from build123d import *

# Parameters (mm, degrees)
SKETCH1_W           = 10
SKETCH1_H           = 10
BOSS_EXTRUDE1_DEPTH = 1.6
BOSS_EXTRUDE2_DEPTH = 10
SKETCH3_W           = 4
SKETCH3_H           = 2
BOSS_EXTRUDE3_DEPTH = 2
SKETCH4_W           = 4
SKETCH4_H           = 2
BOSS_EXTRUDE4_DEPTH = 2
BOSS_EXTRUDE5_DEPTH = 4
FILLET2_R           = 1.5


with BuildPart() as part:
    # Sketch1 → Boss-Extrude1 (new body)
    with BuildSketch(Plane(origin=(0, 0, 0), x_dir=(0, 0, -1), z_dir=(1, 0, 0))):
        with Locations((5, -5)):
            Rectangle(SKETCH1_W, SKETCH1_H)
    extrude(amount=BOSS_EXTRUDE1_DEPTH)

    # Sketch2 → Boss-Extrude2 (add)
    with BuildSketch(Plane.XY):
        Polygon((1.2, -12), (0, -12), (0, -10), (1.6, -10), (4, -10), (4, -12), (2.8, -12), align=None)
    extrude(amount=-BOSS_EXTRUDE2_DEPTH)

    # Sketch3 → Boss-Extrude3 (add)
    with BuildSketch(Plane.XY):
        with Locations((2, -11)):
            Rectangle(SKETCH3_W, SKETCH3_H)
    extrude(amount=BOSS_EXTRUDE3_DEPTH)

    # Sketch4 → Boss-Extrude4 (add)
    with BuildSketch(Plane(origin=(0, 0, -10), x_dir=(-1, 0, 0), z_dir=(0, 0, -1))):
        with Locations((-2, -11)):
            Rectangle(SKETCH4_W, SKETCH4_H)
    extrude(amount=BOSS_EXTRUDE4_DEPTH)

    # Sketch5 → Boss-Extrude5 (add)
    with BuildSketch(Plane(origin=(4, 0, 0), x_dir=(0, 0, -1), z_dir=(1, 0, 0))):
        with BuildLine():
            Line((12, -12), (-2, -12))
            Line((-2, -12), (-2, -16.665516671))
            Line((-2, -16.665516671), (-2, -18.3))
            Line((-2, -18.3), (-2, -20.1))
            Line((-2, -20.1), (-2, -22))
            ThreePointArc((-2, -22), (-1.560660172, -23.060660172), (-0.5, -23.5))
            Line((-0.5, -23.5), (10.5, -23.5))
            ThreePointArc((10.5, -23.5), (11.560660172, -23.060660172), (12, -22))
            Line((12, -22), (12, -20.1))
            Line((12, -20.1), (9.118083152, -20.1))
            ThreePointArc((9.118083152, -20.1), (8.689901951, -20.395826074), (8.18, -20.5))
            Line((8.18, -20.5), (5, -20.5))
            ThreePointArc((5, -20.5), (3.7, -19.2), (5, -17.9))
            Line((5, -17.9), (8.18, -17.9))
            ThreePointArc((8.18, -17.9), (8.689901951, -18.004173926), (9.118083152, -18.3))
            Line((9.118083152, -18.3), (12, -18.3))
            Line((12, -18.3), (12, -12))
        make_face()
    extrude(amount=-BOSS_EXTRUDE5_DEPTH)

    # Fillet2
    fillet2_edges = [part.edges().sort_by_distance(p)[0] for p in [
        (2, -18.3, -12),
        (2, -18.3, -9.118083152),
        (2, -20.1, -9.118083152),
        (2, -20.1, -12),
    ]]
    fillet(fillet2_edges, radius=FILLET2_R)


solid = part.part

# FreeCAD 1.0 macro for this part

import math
import FreeCAD as App
import Part
import Sketcher

V = App.Vector


def edges_at(feature, points):
    """Names of the edges that pass closest to the given points."""
    edges = feature.Shape.Edges
    near = lambda p: min(range(len(edges)), key=lambda i: edges[i].distToShape(Part.Vertex(*p))[0])
    return sorted({f"Edge{near(p) + 1}" for p in points})

doc = App.newDocument("Part")
body = doc.addObject("PartDesign::Body", "Body")

sketch1 = body.newObject("Sketcher::SketchObject", "Sketch")
sketch1.AttachmentSupport = (doc.getObject("YZ_Plane"), [""])
sketch1.MapMode = "FlatFace"
sketch1.addGeometry([
    Part.LineSegment(V(0, 0, 0), V(-10, 0, 0)),
    Part.LineSegment(V(-10, 0, 0), V(-10, -10, 0)),
    Part.LineSegment(V(-10, -10, 0), V(0, -10, 0)),
    Part.LineSegment(V(0, -10, 0), V(0, 0, 0)),
], False)
sketch1.addConstraint([
    Sketcher.Constraint("Coincident", 0, 2, 1, 1),
    Sketcher.Constraint("Coincident", 1, 2, 2, 1),
    Sketcher.Constraint("Coincident", 2, 2, 3, 1),
    Sketcher.Constraint("Coincident", 3, 2, 0, 1),
    Sketcher.Constraint("Horizontal", 0),
    Sketcher.Constraint("Vertical", 1),
    Sketcher.Constraint("Horizontal", 2),
    Sketcher.Constraint("Vertical", 3),
    Sketcher.Constraint("Coincident", 3, 2, -1, 1),
    Sketcher.Constraint("Equal", 2, 1),
    Sketcher.Constraint("DistanceX", 0, 2, 0, 1, 10.0),
])
pad1 = body.newObject("PartDesign::Pad", "Pad")
pad1.Profile = sketch1
pad1.Length = 1.6

sketch2 = body.newObject("Sketcher::SketchObject", "Sketch001")
sketch2.AttachmentSupport = (doc.getObject("XY_Plane"), [""])
sketch2.MapMode = "FlatFace"
sketch2.addGeometry([
    Part.LineSegment(V(0, -12, 0), V(4, -12, 0)),
    Part.LineSegment(V(4, -12, 0), V(4, -10, 0)),
    Part.LineSegment(V(4, -10, 0), V(0, -10, 0)),
    Part.LineSegment(V(0, -10, 0), V(0, -12, 0)),
], False)
sketch2.addConstraint([
    Sketcher.Constraint("Coincident", 0, 2, 1, 1),
    Sketcher.Constraint("Coincident", 1, 2, 2, 1),
    Sketcher.Constraint("Coincident", 2, 2, 3, 1),
    Sketcher.Constraint("Coincident", 3, 2, 0, 1),
    Sketcher.Constraint("Horizontal", 0),
    Sketcher.Constraint("Vertical", 1),
    Sketcher.Constraint("Horizontal", 2),
    Sketcher.Constraint("Vertical", 3),
    Sketcher.Constraint("PointOnObject", 2, 2, -2),
    Sketcher.Constraint("DistanceX", 0, 1, 0, 2, 4.0),
    Sketcher.Constraint("DistanceY", 1, 1, 1, 2, 2.0),
    Sketcher.Constraint("DistanceY", 0, 2, -1, 1, 12.0),
])
pad2 = body.newObject("PartDesign::Pad", "Pad001")
pad2.Profile = sketch2
pad2.Length = 10
pad2.Reversed = True

sketch3 = body.newObject("Sketcher::SketchObject", "Sketch002")
sketch3.AttachmentSupport = (doc.getObject("XY_Plane"), [""])
sketch3.MapMode = "FlatFace"
sketch3.addGeometry([
    Part.LineSegment(V(0, -10, 0), V(0, -12, 0)),
    Part.LineSegment(V(0, -12, 0), V(4, -12, 0)),
    Part.LineSegment(V(4, -12, 0), V(4, -10, 0)),
    Part.LineSegment(V(4, -10, 0), V(0, -10, 0)),
], False)
sketch3.addConstraint([
    Sketcher.Constraint("Coincident", 0, 2, 1, 1),
    Sketcher.Constraint("Coincident", 1, 2, 2, 1),
    Sketcher.Constraint("Coincident", 2, 2, 3, 1),
    Sketcher.Constraint("Coincident", 3, 2, 0, 1),
    Sketcher.Constraint("Vertical", 0),
    Sketcher.Constraint("Horizontal", 1),
    Sketcher.Constraint("Vertical", 2),
    Sketcher.Constraint("Horizontal", 3),
    Sketcher.Constraint("PointOnObject", 0, 2, -2),
    Sketcher.Constraint("DistanceX", 1, 1, 1, 2, 4.0),
    Sketcher.Constraint("DistanceY", 0, 2, 0, 1, 2.0),
    Sketcher.Constraint("DistanceY", 0, 2, -1, 1, 12.0),
])
pad3 = body.newObject("PartDesign::Pad", "Pad002")
pad3.Profile = sketch3
pad3.Length = 2

sketch4 = body.newObject("Sketcher::SketchObject", "Sketch003")
sketch4.AttachmentSupport = (doc.getObject("XY_Plane"), [""])
sketch4.MapMode = "FlatFace"
sketch4.AttachmentOffset = App.Placement(V(0, 0, -10), App.Rotation())
sketch4.addGeometry([
    Part.LineSegment(V(4, -10, 0), V(4, -12, 0)),
    Part.LineSegment(V(4, -12, 0), V(0, -12, 0)),
    Part.LineSegment(V(0, -12, 0), V(0, -10, 0)),
    Part.LineSegment(V(0, -10, 0), V(4, -10, 0)),
], False)
sketch4.addConstraint([
    Sketcher.Constraint("Coincident", 0, 2, 1, 1),
    Sketcher.Constraint("Coincident", 1, 2, 2, 1),
    Sketcher.Constraint("Coincident", 2, 2, 3, 1),
    Sketcher.Constraint("Coincident", 3, 2, 0, 1),
    Sketcher.Constraint("Vertical", 0),
    Sketcher.Constraint("Horizontal", 1),
    Sketcher.Constraint("Vertical", 2),
    Sketcher.Constraint("Horizontal", 3),
    Sketcher.Constraint("PointOnObject", 1, 2, -2),
    Sketcher.Constraint("DistanceX", 1, 2, 1, 1, 4.0),
    Sketcher.Constraint("DistanceY", 0, 2, 0, 1, 2.0),
    Sketcher.Constraint("DistanceY", 0, 2, -1, 1, 12.0),
])
pad4 = body.newObject("PartDesign::Pad", "Pad003")
pad4.Profile = sketch4
pad4.Length = 2
pad4.Reversed = True

sketch5 = body.newObject("Sketcher::SketchObject", "Sketch004")
sketch5.AttachmentSupport = (doc.getObject("YZ_Plane"), [""])
sketch5.MapMode = "FlatFace"
sketch5.AttachmentOffset = App.Placement(V(0, 0, 4), App.Rotation())
sketch5.addGeometry([
    Part.LineSegment(V(-12, -12, 0), V(-12, 2, 0)),
    Part.LineSegment(V(-12, 2, 0), V(-22, 2, 0)),
    Part.ArcOfCircle(Part.Circle(V(-22, 0.5, 0), V(0, 0, 1), 1.5), math.radians(90), math.radians(180)),
    Part.LineSegment(V(-23.5, 0.5, 0), V(-23.5, -10.5, 0)),
    Part.ArcOfCircle(Part.Circle(V(-22, -10.5, 0), V(0, 0, 1), 1.5), math.radians(180), math.radians(270)),
    Part.LineSegment(V(-22, -12, 0), V(-20.1, -12, 0)),
    Part.LineSegment(V(-20.1, -12, 0), V(-20.1, -9.1, 0)),
    Part.ArcOfCircle(Part.Circle(V(-19.2, -8.2, 0), V(0, 0, 1), 1.3), math.radians(-180), math.radians(-134)),
    Part.LineSegment(V(-20.5, -8.2, 0), V(-20.5, -5, 0)),
    Part.ArcOfCircle(Part.Circle(V(-19.2, -5, 0), V(0, 0, 1), 1.3), math.radians(0), math.radians(180)),
    Part.LineSegment(V(-17.9, -5, 0), V(-17.9, -8.2, 0)),
    Part.ArcOfCircle(Part.Circle(V(-19.2, -8.2, 0), V(0, 0, 1), 1.3), math.radians(-46), math.radians(0)),
    Part.LineSegment(V(-18.3, -9.1, 0), V(-18.3, -12, 0)),
    Part.LineSegment(V(-18.3, -12, 0), V(-12, -12, 0)),
], False)
sketch5.addConstraint([
    Sketcher.Constraint("Coincident", 0, 2, 1, 1),
    Sketcher.Constraint("Tangent", 1, 2, 2, 1),
    Sketcher.Constraint("Tangent", 2, 2, 3, 1),
    Sketcher.Constraint("Tangent", 3, 2, 4, 1),
    Sketcher.Constraint("Tangent", 4, 2, 5, 1),
    Sketcher.Constraint("Coincident", 5, 2, 6, 1),
    Sketcher.Constraint("Coincident", 6, 2, 7, 2),
    Sketcher.Constraint("Tangent", 7, 1, 8, 1),
    Sketcher.Constraint("Tangent", 8, 2, 9, 2),
    Sketcher.Constraint("Tangent", 9, 1, 10, 1),
    Sketcher.Constraint("Tangent", 10, 2, 11, 2),
    Sketcher.Constraint("Coincident", 11, 1, 12, 1),
    Sketcher.Constraint("Coincident", 12, 2, 13, 1),
    Sketcher.Constraint("Coincident", 13, 2, 0, 1),
    Sketcher.Constraint("Vertical", 0),
    Sketcher.Constraint("Horizontal", 1),
    Sketcher.Constraint("Vertical", 3),
    Sketcher.Constraint("Horizontal", 5),
    Sketcher.Constraint("Vertical", 6),
    Sketcher.Constraint("Vertical", 8),
    Sketcher.Constraint("Vertical", 10),
    Sketcher.Constraint("Vertical", 12),
    Sketcher.Constraint("Horizontal", 13),
    Sketcher.Constraint("Coincident", 11, 3, 7, 3),
    Sketcher.Constraint("Equal", 2, 4),
    Sketcher.Constraint("Equal", 7, 9),
    Sketcher.Constraint("Horizontal", 6, 2, 11, 1),
    Sketcher.Constraint("Horizontal", 5, 2, 12, 2),
    Sketcher.Constraint("Radius", 2, 1.5),
    Sketcher.Constraint("Radius", 7, 1.3),
    Sketcher.Constraint("DistanceX", 1, 2, 1, 1, 10.0),
    Sketcher.Constraint("DistanceY", 0, 1, 0, 2, 14.0),
    Sketcher.Constraint("DistanceX", 5, 1, 5, 2, 1.9),
    Sketcher.Constraint("DistanceX", 13, 1, 13, 2, 6.3),
    Sketcher.Constraint("DistanceX", 2, 3, -1, 1, 22.0),
    Sketcher.Constraint("DistanceY", 9, 3, -1, 1, 5.0),
    Sketcher.Constraint("DistanceY", -1, 1, 0, 2, 2.0),
    Sketcher.Constraint("DistanceY", 8, 1, 8, 2, 3.18),
])
pad5 = body.newObject("PartDesign::Pad", "Pad004")
pad5.Profile = sketch5
pad5.Length = 4
pad5.Reversed = True
doc.recompute()

fillet = body.newObject("PartDesign::Fillet", "Fillet")
fillet.Base = (pad5, edges_at(pad5, [
    (2, -18.3, -12),
    (2, -18.3, -9.118),
    (2, -20.1, -9.118),
    (2, -20.1, -12),
]))
fillet.Radius = 1.5

doc.recompute()
